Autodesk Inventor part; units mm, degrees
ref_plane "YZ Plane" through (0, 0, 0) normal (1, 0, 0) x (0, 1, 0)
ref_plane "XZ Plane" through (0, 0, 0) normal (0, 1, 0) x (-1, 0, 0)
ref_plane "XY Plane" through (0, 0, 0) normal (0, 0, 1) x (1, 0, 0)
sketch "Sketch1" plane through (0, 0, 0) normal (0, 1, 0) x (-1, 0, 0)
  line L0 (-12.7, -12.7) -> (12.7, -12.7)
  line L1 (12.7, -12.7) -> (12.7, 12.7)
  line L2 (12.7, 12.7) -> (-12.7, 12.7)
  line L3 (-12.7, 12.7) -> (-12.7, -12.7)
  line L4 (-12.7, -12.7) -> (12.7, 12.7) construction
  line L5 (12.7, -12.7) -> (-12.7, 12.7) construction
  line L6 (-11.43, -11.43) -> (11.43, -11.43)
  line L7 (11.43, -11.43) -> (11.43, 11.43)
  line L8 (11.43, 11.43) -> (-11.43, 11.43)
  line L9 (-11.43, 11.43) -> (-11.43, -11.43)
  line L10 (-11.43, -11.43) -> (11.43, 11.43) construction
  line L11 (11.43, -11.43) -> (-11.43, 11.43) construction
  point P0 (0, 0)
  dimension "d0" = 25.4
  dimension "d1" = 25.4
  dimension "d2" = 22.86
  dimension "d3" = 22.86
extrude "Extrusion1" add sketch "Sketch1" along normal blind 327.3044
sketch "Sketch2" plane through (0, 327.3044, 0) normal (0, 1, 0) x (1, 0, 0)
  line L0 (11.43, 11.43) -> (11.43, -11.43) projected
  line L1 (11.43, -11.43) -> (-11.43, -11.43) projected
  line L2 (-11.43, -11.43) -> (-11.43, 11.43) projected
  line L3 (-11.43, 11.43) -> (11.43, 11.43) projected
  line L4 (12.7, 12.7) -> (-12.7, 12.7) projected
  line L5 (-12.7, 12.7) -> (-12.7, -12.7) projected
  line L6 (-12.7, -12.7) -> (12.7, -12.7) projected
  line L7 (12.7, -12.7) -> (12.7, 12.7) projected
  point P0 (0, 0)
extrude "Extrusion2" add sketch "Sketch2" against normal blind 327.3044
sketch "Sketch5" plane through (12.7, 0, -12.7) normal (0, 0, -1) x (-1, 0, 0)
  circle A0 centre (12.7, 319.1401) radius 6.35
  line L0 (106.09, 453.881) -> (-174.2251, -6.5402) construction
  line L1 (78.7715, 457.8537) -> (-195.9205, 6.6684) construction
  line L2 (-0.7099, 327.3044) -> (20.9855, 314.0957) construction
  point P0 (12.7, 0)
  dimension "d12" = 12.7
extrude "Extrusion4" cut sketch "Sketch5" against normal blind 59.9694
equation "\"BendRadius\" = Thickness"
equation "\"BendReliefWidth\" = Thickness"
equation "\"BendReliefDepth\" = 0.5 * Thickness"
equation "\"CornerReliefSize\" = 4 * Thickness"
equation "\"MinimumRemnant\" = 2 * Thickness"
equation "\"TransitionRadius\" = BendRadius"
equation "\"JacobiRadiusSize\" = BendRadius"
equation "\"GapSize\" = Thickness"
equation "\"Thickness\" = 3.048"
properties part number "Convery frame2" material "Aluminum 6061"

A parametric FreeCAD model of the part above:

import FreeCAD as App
import Part
import Sketcher
from FreeCAD import Vector
Q = App.Units.Quantity

doc = App.newDocument("Part")
body = doc.addObject("PartDesign::Body", "Body")

# Sketch on XZ plane
sketch1 = doc.addObject("Sketcher::SketchObject", "Sketch")
body.addObject(sketch1)
sketch1.AttachmentSupport = (doc.XZ_Plane, [""])
sketch1.MapMode = "FlatFace"
sketch1.addGeometry([
    Part.LineSegment(Vector(13, 13, 0), Vector(13, -13, 0)),  # 0
    Part.LineSegment(Vector(13, -13, 0), Vector(-13, -13, 0)),  # 1
    Part.LineSegment(Vector(-13, -13, 0), Vector(-13, 13, 0)),  # 2
    Part.LineSegment(Vector(-13, 13, 0), Vector(13, 13, 0)),  # 3
    Part.LineSegment(Vector(-11, -11, 0), Vector(11, -11, 0)),  # 4
    Part.LineSegment(Vector(11, -11, 0), Vector(11, 11, 0)),  # 5
    Part.LineSegment(Vector(11, 11, 0), Vector(-11, 11, 0)),  # 6
    Part.LineSegment(Vector(-11, 11, 0), Vector(-11, -11, 0)),  # 7
], False)
sketch1.addConstraint([
    Sketcher.Constraint("Coincident", 0, 2, 1, 1),
    Sketcher.Constraint("Coincident", 1, 2, 2, 1),
    Sketcher.Constraint("Coincident", 2, 2, 3, 1),
    Sketcher.Constraint("Coincident", 3, 2, 0, 1),
    Sketcher.Constraint("Coincident", 4, 2, 5, 1),
    Sketcher.Constraint("Coincident", 5, 2, 6, 1),
    Sketcher.Constraint("Coincident", 6, 2, 7, 1),
    Sketcher.Constraint("Coincident", 7, 2, 4, 1),
    Sketcher.Constraint("Vertical", 0),
    Sketcher.Constraint("Horizontal", 1),
    Sketcher.Constraint("Vertical", 2),
    Sketcher.Constraint("Horizontal", 3),
    Sketcher.Constraint("Horizontal", 4),
    Sketcher.Constraint("Vertical", 5),
    Sketcher.Constraint("Horizontal", 6),
    Sketcher.Constraint("Vertical", 7),
    Sketcher.Constraint("Symmetric", 0, 2, 2, 2, -1, 1),
    Sketcher.Constraint("Symmetric", 4, 2, 6, 2, -1, 1),
    Sketcher.Constraint("Equal", 3, 0),
    Sketcher.Constraint("Equal", 6, 5),
    Sketcher.Constraint("DistanceX", 1, 2, 1, 1, Q("1 in")),
    Sketcher.Constraint("DistanceX", 4, 1, 4, 2, Q("0.9 in")),
])
pad1 = doc.addObject("PartDesign::Pad", "Pad")
body.addObject(pad1)
pad1.Profile = sketch1
pad1.Length = Q("12.886 in")
pad1.Reversed = True

# Sketch on XZ plane
sketch2 = doc.addObject("Sketcher::SketchObject", "Sketch001")
body.addObject(sketch2)
sketch2.AttachmentSupport = (doc.XZ_Plane, [""])
sketch2.MapMode = "FlatFace"
sketch2.AttachmentOffset = App.Placement(Vector(0, 0, -12.886 * 25.4), App.Rotation())
sketch2.addGeometry([
    Part.LineSegment(Vector(13, 13, 0), Vector(13, -13, 0)),  # 0
    Part.LineSegment(Vector(13, -13, 0), Vector(-13, -13, 0)),  # 1
    Part.LineSegment(Vector(-13, -13, 0), Vector(-13, 13, 0)),  # 2
    Part.LineSegment(Vector(-13, 13, 0), Vector(13, 13, 0)),  # 3
    Part.LineSegment(Vector(-11, -11, 0), Vector(11, -11, 0)),  # 4
    Part.LineSegment(Vector(11, -11, 0), Vector(11, 11, 0)),  # 5
    Part.LineSegment(Vector(11, 11, 0), Vector(-11, 11, 0)),  # 6
    Part.LineSegment(Vector(-11, 11, 0), Vector(-11, -11, 0)),  # 7
], False)
sketch2.addConstraint([
    Sketcher.Constraint("Coincident", 0, 2, 1, 1),
    Sketcher.Constraint("Coincident", 1, 2, 2, 1),
    Sketcher.Constraint("Coincident", 2, 2, 3, 1),
    Sketcher.Constraint("Coincident", 3, 2, 0, 1),
    Sketcher.Constraint("Coincident", 4, 2, 5, 1),
    Sketcher.Constraint("Coincident", 5, 2, 6, 1),
    Sketcher.Constraint("Coincident", 6, 2, 7, 1),
    Sketcher.Constraint("Coincident", 7, 2, 4, 1),
    Sketcher.Constraint("Vertical", 0),
    Sketcher.Constraint("Horizontal", 1),
    Sketcher.Constraint("Vertical", 2),
    Sketcher.Constraint("Horizontal", 3),
    Sketcher.Constraint("Horizontal", 4),
    Sketcher.Constraint("Vertical", 5),
    Sketcher.Constraint("Horizontal", 6),
    Sketcher.Constraint("Vertical", 7),
    Sketcher.Constraint("Symmetric", 0, 2, 2, 2, -1, 1),
    Sketcher.Constraint("Symmetric", 4, 2, 6, 2, -1, 1),
    Sketcher.Constraint("Equal", 3, 0),
    Sketcher.Constraint("Equal", 6, 5),
    Sketcher.Constraint("DistanceX", 1, 2, 1, 1, Q("1 in")),
    Sketcher.Constraint("DistanceX", 4, 1, 4, 2, Q("0.9 in")),
])
pad2 = doc.addObject("PartDesign::Pad", "Pad001")
body.addObject(pad2)
pad2.Profile = sketch2
pad2.Length = Q("12.886 in")

# Sketch on XY plane
sketch3 = doc.addObject("Sketcher::SketchObject", "Sketch002")
body.addObject(sketch3)
sketch3.AttachmentSupport = (doc.XY_Plane, [""])
sketch3.MapMode = "FlatFace"
sketch3.AttachmentOffset = App.Placement(Vector(0, 0, -0.5 * 25.4), App.Rotation())
sketch3.addGeometry(Part.Circle(Vector(0, 319, 0), Vector(0, 0, 1), 6), False)
sketch3.addConstraint([
    Sketcher.Constraint("PointOnObject", 0, 3, -2),
    Sketcher.Constraint("Diameter", 0, Q("0.5 in")),
    Sketcher.Constraint("DistanceY", -1, 1, 0, 3, Q("319.14 mm")),
])
pocket1 = doc.addObject("PartDesign::Pocket", "Pocket")
body.addObject(pocket1)
pocket1.Profile = sketch3
pocket1.Length = Q("2.361 in")
pocket1.Reversed = True

doc.recompute()
